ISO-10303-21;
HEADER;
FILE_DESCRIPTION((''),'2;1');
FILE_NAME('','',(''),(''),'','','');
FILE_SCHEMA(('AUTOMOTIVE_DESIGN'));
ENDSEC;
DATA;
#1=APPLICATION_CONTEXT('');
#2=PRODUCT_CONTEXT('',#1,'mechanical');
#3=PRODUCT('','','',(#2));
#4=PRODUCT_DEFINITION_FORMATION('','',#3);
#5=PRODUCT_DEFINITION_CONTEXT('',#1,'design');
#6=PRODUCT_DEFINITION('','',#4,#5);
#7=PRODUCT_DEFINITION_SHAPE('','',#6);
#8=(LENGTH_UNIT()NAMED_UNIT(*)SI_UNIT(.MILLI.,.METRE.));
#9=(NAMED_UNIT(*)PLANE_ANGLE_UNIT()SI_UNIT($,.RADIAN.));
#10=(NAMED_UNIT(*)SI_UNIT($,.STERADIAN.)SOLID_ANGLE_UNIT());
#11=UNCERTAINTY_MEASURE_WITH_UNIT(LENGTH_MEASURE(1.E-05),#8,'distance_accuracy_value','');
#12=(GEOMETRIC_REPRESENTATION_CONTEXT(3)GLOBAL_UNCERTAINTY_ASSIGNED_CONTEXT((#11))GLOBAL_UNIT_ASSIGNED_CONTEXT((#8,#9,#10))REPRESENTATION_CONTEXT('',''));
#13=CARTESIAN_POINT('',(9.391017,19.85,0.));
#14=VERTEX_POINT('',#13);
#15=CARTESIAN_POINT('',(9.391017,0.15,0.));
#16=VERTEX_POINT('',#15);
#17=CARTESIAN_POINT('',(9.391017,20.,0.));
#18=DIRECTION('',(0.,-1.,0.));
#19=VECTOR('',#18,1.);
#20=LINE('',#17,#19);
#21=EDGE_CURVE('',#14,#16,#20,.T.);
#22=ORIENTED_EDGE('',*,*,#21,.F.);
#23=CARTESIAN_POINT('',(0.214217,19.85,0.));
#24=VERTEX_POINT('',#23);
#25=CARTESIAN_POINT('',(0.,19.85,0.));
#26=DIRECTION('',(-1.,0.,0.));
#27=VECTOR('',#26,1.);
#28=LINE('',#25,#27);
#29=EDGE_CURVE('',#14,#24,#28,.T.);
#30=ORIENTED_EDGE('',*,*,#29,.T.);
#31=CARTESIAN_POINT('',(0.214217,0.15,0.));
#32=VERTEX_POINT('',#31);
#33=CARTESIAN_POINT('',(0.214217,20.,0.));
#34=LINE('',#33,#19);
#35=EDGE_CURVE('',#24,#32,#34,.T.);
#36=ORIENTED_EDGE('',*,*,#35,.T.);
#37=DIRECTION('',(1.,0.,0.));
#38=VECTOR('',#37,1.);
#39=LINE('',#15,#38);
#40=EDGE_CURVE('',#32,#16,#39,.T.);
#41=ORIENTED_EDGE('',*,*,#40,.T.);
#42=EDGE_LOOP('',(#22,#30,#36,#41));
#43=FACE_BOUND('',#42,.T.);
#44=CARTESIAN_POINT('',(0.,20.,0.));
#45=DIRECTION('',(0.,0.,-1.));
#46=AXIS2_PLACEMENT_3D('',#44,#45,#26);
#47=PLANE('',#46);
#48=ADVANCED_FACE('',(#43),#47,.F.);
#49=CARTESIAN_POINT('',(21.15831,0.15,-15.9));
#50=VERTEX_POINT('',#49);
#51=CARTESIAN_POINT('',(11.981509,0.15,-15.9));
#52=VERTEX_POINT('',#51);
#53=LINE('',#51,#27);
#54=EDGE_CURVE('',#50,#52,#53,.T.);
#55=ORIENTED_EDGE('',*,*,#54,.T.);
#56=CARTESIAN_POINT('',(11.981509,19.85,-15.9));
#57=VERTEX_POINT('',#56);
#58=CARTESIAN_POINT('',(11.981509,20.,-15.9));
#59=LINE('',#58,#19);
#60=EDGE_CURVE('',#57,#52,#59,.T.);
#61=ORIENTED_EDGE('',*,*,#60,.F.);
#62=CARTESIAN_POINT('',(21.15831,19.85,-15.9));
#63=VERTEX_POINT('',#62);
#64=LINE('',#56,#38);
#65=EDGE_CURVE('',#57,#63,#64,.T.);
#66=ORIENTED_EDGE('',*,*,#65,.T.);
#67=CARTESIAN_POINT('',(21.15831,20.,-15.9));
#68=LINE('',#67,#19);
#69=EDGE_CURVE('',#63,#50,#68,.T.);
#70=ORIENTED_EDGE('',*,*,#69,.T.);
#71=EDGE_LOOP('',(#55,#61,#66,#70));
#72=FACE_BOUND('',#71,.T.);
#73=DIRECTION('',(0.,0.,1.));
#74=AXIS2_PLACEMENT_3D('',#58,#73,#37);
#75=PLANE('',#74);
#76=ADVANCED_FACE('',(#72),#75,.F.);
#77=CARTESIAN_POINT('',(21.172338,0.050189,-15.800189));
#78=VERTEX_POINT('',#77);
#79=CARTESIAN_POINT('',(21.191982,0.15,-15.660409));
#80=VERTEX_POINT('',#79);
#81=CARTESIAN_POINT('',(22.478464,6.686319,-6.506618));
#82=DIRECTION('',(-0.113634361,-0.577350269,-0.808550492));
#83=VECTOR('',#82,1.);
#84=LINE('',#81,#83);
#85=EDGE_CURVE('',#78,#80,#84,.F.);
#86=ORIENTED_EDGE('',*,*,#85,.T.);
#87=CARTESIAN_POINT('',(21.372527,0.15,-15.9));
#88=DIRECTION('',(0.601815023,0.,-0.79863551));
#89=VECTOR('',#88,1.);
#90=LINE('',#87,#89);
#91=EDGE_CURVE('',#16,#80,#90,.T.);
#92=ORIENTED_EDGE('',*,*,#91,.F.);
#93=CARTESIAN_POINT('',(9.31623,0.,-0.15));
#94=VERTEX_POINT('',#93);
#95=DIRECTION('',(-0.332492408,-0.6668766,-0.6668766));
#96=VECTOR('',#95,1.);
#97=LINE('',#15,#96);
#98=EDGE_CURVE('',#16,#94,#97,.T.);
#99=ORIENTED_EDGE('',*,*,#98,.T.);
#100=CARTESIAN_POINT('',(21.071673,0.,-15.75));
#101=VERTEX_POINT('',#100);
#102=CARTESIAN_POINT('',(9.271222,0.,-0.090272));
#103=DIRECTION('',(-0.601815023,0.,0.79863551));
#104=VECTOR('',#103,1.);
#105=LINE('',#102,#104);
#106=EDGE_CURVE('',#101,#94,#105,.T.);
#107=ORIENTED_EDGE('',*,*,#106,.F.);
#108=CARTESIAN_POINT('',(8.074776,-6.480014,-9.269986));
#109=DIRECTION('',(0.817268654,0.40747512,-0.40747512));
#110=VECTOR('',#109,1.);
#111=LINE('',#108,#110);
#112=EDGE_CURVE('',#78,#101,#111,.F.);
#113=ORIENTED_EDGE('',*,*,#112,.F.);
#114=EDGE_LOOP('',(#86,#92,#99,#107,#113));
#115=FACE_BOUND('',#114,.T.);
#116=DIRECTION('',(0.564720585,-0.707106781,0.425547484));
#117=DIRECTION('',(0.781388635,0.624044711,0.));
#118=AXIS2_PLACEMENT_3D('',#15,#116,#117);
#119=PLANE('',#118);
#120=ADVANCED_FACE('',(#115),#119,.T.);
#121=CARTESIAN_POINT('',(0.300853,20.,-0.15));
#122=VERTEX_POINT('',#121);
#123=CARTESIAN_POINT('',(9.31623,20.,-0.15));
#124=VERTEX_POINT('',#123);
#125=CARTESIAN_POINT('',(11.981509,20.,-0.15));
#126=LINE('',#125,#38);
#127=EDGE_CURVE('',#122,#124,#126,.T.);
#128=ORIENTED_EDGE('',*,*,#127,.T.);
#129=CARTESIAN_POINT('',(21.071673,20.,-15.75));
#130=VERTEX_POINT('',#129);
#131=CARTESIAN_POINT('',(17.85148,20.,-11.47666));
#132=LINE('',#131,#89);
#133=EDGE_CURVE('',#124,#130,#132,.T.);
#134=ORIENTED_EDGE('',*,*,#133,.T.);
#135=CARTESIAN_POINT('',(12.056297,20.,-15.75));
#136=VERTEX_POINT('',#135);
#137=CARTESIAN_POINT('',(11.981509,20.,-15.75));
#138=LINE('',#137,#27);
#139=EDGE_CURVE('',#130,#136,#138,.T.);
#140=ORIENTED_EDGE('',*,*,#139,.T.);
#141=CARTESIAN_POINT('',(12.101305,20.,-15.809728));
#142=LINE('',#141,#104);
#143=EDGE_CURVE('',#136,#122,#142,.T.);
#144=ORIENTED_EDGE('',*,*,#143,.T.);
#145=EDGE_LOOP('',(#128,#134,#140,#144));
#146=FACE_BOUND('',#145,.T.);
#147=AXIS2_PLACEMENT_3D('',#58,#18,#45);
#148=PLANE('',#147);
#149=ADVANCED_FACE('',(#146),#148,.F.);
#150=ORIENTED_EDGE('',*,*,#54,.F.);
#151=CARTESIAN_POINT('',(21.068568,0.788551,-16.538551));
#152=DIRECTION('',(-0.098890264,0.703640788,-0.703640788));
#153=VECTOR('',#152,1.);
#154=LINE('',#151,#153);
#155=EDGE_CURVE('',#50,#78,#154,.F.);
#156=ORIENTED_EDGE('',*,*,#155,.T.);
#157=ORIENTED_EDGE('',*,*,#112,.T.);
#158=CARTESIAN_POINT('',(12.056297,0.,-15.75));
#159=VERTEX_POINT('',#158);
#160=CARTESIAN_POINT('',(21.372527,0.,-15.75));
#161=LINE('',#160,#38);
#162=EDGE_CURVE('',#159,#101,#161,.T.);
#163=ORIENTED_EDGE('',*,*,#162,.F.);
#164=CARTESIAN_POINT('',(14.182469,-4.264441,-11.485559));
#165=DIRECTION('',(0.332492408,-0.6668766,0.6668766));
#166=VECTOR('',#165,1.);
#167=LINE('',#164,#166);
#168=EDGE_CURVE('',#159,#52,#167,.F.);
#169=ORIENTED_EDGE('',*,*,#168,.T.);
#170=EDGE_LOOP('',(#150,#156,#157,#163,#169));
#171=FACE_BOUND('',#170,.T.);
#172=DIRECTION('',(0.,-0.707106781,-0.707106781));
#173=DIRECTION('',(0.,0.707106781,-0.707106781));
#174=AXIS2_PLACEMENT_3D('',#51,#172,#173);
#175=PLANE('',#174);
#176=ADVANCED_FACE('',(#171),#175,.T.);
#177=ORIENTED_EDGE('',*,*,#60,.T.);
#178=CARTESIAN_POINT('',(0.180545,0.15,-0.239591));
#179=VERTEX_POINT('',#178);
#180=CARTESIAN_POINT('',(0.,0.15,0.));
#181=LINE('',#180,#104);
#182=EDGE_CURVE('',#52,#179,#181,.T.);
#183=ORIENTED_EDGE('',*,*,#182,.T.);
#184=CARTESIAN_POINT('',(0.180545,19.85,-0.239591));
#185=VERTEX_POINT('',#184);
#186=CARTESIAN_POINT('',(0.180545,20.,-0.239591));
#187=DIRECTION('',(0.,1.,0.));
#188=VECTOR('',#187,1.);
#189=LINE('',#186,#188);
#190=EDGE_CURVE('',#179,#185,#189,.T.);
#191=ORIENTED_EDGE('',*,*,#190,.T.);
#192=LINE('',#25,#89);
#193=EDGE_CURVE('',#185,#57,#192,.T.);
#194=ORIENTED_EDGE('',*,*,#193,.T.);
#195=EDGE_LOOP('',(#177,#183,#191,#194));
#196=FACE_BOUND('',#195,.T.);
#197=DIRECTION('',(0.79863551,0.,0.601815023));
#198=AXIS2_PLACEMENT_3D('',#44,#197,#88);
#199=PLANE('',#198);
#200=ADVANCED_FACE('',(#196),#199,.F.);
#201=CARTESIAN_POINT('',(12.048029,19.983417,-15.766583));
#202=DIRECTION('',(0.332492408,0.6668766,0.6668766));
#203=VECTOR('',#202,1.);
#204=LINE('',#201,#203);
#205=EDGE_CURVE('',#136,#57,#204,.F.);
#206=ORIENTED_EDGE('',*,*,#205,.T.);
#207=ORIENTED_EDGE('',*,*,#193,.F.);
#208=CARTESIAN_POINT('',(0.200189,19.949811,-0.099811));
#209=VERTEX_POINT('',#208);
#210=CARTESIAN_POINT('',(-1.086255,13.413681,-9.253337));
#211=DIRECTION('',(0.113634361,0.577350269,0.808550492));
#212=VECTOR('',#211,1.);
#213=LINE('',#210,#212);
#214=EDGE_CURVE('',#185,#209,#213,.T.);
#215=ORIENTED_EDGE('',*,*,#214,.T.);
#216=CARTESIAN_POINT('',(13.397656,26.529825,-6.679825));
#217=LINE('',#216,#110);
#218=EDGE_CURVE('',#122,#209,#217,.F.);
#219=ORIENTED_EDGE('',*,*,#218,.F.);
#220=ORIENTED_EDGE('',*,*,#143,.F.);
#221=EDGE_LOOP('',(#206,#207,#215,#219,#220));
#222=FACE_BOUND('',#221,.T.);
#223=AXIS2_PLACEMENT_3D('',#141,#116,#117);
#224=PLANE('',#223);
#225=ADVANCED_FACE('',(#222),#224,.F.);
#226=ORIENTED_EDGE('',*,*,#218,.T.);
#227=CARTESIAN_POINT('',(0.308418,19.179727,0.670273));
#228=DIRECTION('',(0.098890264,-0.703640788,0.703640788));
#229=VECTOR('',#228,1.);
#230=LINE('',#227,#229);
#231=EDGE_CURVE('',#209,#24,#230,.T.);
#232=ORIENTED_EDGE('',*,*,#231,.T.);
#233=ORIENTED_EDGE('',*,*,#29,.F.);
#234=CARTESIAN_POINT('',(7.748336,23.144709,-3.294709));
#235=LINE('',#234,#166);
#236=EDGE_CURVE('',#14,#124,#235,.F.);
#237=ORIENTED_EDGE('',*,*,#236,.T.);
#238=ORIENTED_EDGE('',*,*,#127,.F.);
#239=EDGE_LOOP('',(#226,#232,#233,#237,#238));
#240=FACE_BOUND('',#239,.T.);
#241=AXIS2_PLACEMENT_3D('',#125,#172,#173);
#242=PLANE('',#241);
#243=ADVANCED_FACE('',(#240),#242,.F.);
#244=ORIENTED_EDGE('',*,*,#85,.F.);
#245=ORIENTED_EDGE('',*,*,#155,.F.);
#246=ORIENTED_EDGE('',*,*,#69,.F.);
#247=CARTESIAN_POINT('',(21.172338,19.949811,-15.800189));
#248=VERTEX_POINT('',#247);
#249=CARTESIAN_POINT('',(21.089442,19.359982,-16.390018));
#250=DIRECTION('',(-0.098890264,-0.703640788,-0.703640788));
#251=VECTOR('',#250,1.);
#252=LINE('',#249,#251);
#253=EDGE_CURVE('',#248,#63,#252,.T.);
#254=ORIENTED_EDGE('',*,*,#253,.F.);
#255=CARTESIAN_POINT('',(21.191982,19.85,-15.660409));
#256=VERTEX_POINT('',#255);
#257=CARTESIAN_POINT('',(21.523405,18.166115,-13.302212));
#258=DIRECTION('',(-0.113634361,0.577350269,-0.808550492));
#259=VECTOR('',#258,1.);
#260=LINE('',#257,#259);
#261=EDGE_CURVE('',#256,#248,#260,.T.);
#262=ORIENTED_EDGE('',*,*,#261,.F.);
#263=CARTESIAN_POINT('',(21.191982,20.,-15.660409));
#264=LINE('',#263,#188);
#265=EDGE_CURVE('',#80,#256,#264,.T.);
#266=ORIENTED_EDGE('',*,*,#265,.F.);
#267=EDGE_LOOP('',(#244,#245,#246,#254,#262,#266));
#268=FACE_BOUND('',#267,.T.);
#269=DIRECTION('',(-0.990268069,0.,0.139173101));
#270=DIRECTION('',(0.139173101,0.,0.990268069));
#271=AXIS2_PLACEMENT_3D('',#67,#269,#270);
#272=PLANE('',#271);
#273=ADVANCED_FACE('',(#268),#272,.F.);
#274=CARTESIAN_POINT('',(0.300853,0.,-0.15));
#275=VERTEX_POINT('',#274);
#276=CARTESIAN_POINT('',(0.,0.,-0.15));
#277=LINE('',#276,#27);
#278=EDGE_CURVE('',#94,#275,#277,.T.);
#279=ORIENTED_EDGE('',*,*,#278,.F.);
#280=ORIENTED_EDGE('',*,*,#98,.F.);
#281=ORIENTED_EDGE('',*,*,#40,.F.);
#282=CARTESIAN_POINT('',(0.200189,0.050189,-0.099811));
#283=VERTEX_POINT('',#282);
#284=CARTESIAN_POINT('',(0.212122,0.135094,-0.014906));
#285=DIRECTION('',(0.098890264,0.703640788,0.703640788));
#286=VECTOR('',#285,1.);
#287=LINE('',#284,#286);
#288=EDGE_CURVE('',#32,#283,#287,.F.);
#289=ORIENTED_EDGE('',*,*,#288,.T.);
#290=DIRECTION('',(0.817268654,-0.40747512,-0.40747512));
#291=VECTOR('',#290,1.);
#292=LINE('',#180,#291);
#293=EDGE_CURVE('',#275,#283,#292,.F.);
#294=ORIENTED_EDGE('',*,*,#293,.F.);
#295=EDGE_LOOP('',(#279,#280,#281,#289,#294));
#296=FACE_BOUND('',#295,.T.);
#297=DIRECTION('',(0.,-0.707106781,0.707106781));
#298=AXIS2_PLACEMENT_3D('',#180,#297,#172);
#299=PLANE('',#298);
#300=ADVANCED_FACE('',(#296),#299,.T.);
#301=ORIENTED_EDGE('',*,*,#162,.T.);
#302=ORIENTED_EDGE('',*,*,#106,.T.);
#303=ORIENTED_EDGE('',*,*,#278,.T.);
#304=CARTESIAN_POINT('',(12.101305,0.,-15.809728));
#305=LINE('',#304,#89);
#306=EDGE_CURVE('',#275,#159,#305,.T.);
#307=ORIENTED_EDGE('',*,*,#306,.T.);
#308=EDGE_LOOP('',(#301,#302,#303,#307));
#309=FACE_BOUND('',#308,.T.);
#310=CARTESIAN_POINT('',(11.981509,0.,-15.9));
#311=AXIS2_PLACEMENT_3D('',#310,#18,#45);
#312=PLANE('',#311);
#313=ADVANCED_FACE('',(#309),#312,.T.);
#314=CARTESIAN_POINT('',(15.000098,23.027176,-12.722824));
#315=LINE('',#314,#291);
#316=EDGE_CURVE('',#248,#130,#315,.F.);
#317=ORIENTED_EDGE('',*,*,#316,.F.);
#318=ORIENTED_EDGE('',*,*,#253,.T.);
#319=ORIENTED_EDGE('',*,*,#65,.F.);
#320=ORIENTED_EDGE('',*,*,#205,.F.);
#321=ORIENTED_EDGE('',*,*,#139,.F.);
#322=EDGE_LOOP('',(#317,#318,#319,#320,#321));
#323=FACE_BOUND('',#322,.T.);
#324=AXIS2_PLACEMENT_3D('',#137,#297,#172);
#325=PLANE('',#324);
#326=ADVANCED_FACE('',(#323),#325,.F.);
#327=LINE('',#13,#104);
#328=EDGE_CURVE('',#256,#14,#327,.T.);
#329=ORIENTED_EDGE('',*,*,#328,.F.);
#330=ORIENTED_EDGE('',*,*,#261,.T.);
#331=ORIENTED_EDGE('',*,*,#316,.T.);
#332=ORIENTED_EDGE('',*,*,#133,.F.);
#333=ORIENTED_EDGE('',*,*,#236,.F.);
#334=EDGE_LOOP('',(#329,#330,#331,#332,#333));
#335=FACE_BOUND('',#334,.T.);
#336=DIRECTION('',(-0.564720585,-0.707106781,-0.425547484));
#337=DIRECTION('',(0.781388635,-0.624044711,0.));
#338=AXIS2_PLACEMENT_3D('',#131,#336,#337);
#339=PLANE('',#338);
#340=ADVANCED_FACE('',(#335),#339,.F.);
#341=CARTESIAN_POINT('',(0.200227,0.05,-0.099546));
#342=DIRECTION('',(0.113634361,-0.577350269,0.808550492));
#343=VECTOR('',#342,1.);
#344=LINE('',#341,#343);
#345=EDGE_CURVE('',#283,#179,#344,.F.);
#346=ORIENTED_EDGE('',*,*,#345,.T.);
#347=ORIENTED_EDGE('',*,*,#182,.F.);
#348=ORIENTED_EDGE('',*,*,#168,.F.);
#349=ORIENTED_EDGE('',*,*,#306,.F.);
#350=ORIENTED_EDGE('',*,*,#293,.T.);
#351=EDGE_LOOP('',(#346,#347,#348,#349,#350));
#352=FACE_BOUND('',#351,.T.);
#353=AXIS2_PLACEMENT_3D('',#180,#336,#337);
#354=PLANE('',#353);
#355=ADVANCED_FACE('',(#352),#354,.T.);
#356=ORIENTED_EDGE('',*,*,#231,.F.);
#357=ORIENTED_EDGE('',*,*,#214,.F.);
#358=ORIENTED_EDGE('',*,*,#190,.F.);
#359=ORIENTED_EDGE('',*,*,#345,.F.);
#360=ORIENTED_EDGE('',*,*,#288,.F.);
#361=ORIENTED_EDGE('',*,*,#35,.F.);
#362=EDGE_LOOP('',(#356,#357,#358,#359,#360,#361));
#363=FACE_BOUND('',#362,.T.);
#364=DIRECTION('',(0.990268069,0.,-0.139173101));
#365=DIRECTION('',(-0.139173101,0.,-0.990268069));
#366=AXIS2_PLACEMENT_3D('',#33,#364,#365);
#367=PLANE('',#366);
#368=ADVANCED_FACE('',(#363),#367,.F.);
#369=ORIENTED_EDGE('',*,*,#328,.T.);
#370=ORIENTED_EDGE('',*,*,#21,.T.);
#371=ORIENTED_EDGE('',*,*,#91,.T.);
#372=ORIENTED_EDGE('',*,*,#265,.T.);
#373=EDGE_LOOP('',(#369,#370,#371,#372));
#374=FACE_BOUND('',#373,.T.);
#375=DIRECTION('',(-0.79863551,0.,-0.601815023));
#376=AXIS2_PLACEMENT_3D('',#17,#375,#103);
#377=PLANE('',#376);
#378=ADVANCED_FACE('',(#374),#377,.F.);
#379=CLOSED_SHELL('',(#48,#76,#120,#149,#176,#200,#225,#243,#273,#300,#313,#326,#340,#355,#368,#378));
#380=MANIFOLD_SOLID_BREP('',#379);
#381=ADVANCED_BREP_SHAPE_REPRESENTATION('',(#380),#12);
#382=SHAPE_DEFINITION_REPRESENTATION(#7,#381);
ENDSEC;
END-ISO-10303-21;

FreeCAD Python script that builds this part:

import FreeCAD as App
import Part
import Sketcher
Q = App.Units.Quantity


def edges_at(feature, points):
    """Names of the edges that pass closest to the given points."""
    edges = feature.Shape.Edges
    near = lambda p: min(range(len(edges)), key=lambda i: edges[i].distToShape(Part.Vertex(*p))[0])
    return sorted({f"Edge{near(p) + 1}" for p in points})

doc = App.newDocument("Part")
body = doc.addObject("PartDesign::Body", "Body")

# Sketch on XZ plane
sketch1 = body.newObject("Sketcher::SketchObject", "Sketch")
sketch1.AttachmentSupport = (doc.getObject("XZ_Plane"), [""])
sketch1.MapMode = "FlatFace"
sketch1.addGeometry(Part.LineSegment(App.Vector(21.372527, -15.9, 0), App.Vector(11.981509, -15.9, 0)), False)
sketch1.addGeometry(Part.LineSegment(App.Vector(11.981509, -15.9, 0), App.Vector(0, 0, 0)), False)
sketch1.addGeometry(Part.LineSegment(App.Vector(0, 0, 0), App.Vector(9.391017, 0, 0)), False)
sketch1.addGeometry(Part.LineSegment(App.Vector(9.391017, 0, 0), App.Vector(21.372527, -15.9, 0)), False)
sketch1.addConstraint(Sketcher.Constraint("Coincident", 0, 2, 1, 1))
sketch1.addConstraint(Sketcher.Constraint("Coincident", 1, 2, 2, 1))
sketch1.addConstraint(Sketcher.Constraint("Coincident", 2, 2, 3, 1))
sketch1.addConstraint(Sketcher.Constraint("Coincident", 3, 2, 0, 1))
sketch1.addConstraint(Sketcher.Constraint("Horizontal", 0))
sketch1.addConstraint(Sketcher.Constraint("Horizontal", 2))
sketch1.addConstraint(Sketcher.Constraint("Coincident", 1, 2, -1, 1))
sketch1.addConstraint(Sketcher.Constraint("Parallel", 1, 3))
sketch1.addConstraint(Sketcher.Constraint("Angle", 1, Q("127 deg")))
sketch1.addConstraint(Sketcher.Constraint("DistanceY", 0, 2, -1, 1, Q("15.9 mm")))
sketch1.addConstraint(Sketcher.Constraint("DistanceX", 0, 2, 0, 1, Q("9.391017 mm")))
pad1 = body.newObject("PartDesign::Pad", "Pad")
pad1.Profile = sketch1
pad1.Length = 20
pad1.Reversed = True
doc.recompute()

chamfer = body.newObject("PartDesign::Chamfer", "Chamfer")
chamfer.Base = (pad1, edges_at(pad1, [
    (15.382, 20, -7.95),
    (16.677, 20, -15.9),
    (5.991, 20, -7.95),
    (16.677, 0, -15.9),
    (15.382, 0, -7.95),
    (4.696, 0, 0),
    (5.991, 0, -7.95),
    (4.696, 20, 0),
]))
chamfer.Size = 0.15
doc.recompute()

chamfer2 = body.newObject("PartDesign::Chamfer", "Chamfer001")
chamfer2.Base = (chamfer, edges_at(chamfer, [(21.373, 10, -15.9)]))
chamfer2.ChamferType = "Two distances"
chamfer2.Size = 0.214217
chamfer2.Size2 = 0.3
doc.recompute()

chamfer3 = body.newObject("PartDesign::Chamfer", "Chamfer002")
chamfer3.Base = (chamfer2, edges_at(chamfer2, [(0, 10, 0)]))
chamfer3.ChamferType = "Two distances"
chamfer3.Size = 0.3
chamfer3.Size2 = 0.214217

doc.recompute()
